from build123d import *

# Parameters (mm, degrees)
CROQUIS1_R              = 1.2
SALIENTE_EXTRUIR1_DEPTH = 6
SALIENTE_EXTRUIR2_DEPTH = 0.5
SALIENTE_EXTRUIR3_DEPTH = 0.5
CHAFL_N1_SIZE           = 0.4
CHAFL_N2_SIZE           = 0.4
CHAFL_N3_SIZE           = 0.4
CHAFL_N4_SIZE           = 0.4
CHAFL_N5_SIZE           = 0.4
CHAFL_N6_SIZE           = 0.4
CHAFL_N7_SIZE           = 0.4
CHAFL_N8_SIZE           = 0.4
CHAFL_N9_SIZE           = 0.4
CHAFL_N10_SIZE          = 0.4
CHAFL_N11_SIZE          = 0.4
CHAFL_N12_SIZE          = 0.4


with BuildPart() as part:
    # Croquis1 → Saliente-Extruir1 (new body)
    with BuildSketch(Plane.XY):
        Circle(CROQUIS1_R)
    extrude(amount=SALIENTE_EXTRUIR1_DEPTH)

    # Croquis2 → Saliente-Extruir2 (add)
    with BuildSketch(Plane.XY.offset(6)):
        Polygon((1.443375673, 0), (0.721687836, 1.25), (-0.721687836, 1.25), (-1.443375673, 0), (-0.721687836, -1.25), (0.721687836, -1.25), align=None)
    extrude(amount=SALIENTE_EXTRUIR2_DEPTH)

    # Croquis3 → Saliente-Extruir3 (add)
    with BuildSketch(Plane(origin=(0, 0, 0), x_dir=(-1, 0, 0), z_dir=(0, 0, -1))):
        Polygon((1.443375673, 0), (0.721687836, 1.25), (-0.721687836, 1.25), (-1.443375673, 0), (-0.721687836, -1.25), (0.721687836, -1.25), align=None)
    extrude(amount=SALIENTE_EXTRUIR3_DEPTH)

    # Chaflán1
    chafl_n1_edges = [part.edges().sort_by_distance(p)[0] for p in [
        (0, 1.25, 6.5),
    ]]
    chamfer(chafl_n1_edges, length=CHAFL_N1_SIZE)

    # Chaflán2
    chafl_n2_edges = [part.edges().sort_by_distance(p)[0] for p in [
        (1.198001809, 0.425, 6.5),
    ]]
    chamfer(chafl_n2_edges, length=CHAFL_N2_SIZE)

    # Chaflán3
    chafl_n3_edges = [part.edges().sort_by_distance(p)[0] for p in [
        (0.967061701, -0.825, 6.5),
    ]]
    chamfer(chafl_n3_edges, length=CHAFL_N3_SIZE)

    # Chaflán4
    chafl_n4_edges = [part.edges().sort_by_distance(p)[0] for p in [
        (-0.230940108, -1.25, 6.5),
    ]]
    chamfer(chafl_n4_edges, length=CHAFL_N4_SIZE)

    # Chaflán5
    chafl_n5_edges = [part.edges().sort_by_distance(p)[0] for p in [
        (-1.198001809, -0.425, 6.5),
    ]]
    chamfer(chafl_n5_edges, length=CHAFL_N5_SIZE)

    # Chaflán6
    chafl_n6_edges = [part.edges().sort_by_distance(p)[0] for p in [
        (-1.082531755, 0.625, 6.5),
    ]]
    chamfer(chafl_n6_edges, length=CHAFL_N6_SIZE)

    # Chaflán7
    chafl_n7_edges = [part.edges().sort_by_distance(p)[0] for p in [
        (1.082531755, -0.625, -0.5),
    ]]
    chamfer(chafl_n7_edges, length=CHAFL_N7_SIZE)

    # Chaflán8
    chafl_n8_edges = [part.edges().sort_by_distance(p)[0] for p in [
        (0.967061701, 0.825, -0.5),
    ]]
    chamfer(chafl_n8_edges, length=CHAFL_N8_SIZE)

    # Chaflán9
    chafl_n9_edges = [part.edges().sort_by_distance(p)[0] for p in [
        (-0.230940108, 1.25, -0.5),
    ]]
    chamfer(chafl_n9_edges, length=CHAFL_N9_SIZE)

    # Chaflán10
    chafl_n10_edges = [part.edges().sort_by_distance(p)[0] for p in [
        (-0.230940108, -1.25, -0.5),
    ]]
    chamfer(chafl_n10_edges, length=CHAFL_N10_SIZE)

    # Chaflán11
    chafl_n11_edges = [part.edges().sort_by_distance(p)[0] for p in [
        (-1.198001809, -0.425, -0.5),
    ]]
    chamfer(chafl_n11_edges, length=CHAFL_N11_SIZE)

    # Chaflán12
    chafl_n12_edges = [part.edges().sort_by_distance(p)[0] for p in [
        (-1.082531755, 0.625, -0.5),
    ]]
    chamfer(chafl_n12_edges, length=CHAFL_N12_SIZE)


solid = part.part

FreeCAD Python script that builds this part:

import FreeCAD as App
import Part
import Sketcher

V = App.Vector
Q = App.Units.Quantity


def edges_at(feature, points):
    """Names of the edges that pass closest to the given points."""
    edges = feature.Shape.Edges
    near = lambda p: min(range(len(edges)), key=lambda i: edges[i].distToShape(Part.Vertex(*p))[0])
    return sorted({f"Edge{near(p) + 1}" for p in points})


def add_polygon(sketch, points):
    """Adds a closed chain of lines whose ends are joined by coincident constraints."""
    first, n = sketch.GeometryCount, len(points)
    for a, b in zip(points, points[1:] + points[:1]):
        sketch.addGeometry(Part.LineSegment(App.Vector(*a, 0), App.Vector(*b, 0)), False)
    for i in range(n):
        sketch.addConstraint(Sketcher.Constraint("Coincident", first + i, 2, first + (i + 1) % n, 1))

doc = App.newDocument("Part")
body = doc.addObject("PartDesign::Body", "Body")

# Sketch on XY plane
sketch1 = doc.addObject("Sketcher::SketchObject", "Sketch")
body.addObject(sketch1)
sketch1.AttachmentSupport = (doc.XY_Plane, [""])
sketch1.MapMode = "FlatFace"
sketch1.addGeometry(Part.Circle(V(0, 0, 0), V(0, 0, 1), 1.2), False)
sketch1.addConstraint([
    Sketcher.Constraint("Coincident", 0, 3, -1, 1),
    Sketcher.Constraint("Diameter", 0, Q("2.4 mm")),
])
pad1 = doc.addObject("PartDesign::Pad", "Pad")
body.addObject(pad1)
pad1.Profile = sketch1
pad1.Length = 6

# Sketch on XY plane
sketch2 = doc.addObject("Sketcher::SketchObject", "Sketch001")
body.addObject(sketch2)
sketch2.AttachmentSupport = (doc.XY_Plane, [""])
sketch2.MapMode = "FlatFace"
sketch2.AttachmentOffset = App.Placement(V(0, 0, 6), App.Rotation())
add_polygon(sketch2, [(1.4, 0), (0.7, 1.2), (-0.7, 1.2), (-1.4, 0), (-0.7, -1.2), (0.7, -1.2)])  # lines 0-5
sketch2.addConstraint([
    Sketcher.Constraint("Horizontal", 1),
    Sketcher.Constraint("Horizontal", 4),
    Sketcher.Constraint("Symmetric", 0, 2, 3, 2, -1, 1),
    Sketcher.Constraint("Symmetric", 2, 2, 5, 2, -1, 1),
    Sketcher.Constraint("PointOnObject", 2, 2, -1),
    Sketcher.Constraint("Parallel", 2, 5),
    Sketcher.Constraint("Vertical", 1, 2, 3, 2),
    Sketcher.Constraint("Angle", 0, Q("120 deg")),
    Sketcher.Constraint("DistanceY", 3, 2, 1, 2, Q("2.5 mm")),
    Sketcher.Constraint("DistanceX", 1, 2, 1, 1, Q("1.443376 mm")),
])
pad2 = doc.addObject("PartDesign::Pad", "Pad001")
body.addObject(pad2)
pad2.Profile = sketch2
pad2.Length = 0.5

# Sketch on XY plane
sketch3 = doc.addObject("Sketcher::SketchObject", "Sketch002")
body.addObject(sketch3)
sketch3.AttachmentSupport = (doc.XY_Plane, [""])
sketch3.MapMode = "FlatFace"
add_polygon(sketch3, [(-1.4, 0), (-0.7, 1.2), (0.7, 1.2), (1.4, 0), (0.7, -1.2), (-0.7, -1.2)])  # lines 0-5
sketch3.addConstraint([
    Sketcher.Constraint("Horizontal", 1),
    Sketcher.Constraint("Horizontal", 4),
    Sketcher.Constraint("Symmetric", 0, 2, 3, 2, -1, 1),
    Sketcher.Constraint("Symmetric", 2, 2, 5, 2, -1, 1),
    Sketcher.Constraint("PointOnObject", 2, 2, -1),
    Sketcher.Constraint("Parallel", 2, 5),
    Sketcher.Constraint("Vertical", 1, 2, 3, 2),
    Sketcher.Constraint("Angle", 0, Q("60 deg")),
    Sketcher.Constraint("DistanceY", 3, 2, 1, 2, Q("2.5 mm")),
    Sketcher.Constraint("DistanceX", 1, 1, 1, 2, Q("1.443376 mm")),
])
pad3 = doc.addObject("PartDesign::Pad", "Pad002")
body.addObject(pad3)
pad3.Profile = sketch3
pad3.Length = 0.5
pad3.Reversed = True
doc.recompute()

chamfer = doc.addObject("PartDesign::Chamfer", "Chamfer")
body.addObject(chamfer)
chamfer.Base = (pad3, edges_at(pad3, [(0, 1.25, 6.5)]))
chamfer.Size = 0.4
doc.recompute()

chamfer2 = doc.addObject("PartDesign::Chamfer", "Chamfer001")
body.addObject(chamfer2)
chamfer2.Base = (chamfer, edges_at(chamfer, [(1.198, 0.425, 6.5)]))
chamfer2.Size = 0.4
doc.recompute()

chamfer3 = doc.addObject("PartDesign::Chamfer", "Chamfer002")
body.addObject(chamfer3)
chamfer3.Base = (chamfer2, edges_at(chamfer2, [(0.967, -0.825, 6.5)]))
chamfer3.Size = 0.4
doc.recompute()

chamfer4 = doc.addObject("PartDesign::Chamfer", "Chamfer003")
body.addObject(chamfer4)
chamfer4.Base = (chamfer3, edges_at(chamfer3, [(-0.231, -1.25, 6.5)]))
chamfer4.Size = 0.4
doc.recompute()

chamfer5 = doc.addObject("PartDesign::Chamfer", "Chamfer004")
body.addObject(chamfer5)
chamfer5.Base = (chamfer4, edges_at(chamfer4, [(-1.198, -0.425, 6.5)]))
chamfer5.Size = 0.4
doc.recompute()

chamfer6 = doc.addObject("PartDesign::Chamfer", "Chamfer005")
body.addObject(chamfer6)
chamfer6.Base = (chamfer5, edges_at(chamfer5, [(-1.083, 0.625, 6.5)]))
chamfer6.Size = 0.4
doc.recompute()

chamfer7 = doc.addObject("PartDesign::Chamfer", "Chamfer006")
body.addObject(chamfer7)
chamfer7.Base = (chamfer6, edges_at(chamfer6, [(1.083, -0.625, -0.5)]))
chamfer7.Size = 0.4
doc.recompute()

chamfer8 = doc.addObject("PartDesign::Chamfer", "Chamfer007")
body.addObject(chamfer8)
chamfer8.Base = (chamfer7, edges_at(chamfer7, [(0.967, 0.825, -0.5)]))
chamfer8.Size = 0.4
doc.recompute()

chamfer9 = doc.addObject("PartDesign::Chamfer", "Chamfer008")
body.addObject(chamfer9)
chamfer9.Base = (chamfer8, edges_at(chamfer8, [(-0.231, 1.25, -0.5)]))
chamfer9.Size = 0.4
doc.recompute()

chamfer10 = doc.addObject("PartDesign::Chamfer", "Chamfer009")
body.addObject(chamfer10)
chamfer10.Base = (chamfer9, edges_at(chamfer9, [(-0.231, -1.25, -0.5)]))
chamfer10.Size = 0.4
doc.recompute()

chamfer11 = doc.addObject("PartDesign::Chamfer", "Chamfer010")
body.addObject(chamfer11)
chamfer11.Base = (chamfer10, edges_at(chamfer10, [(-1.198, -0.425, -0.5)]))
chamfer11.Size = 0.4
doc.recompute()

chamfer12 = doc.addObject("PartDesign::Chamfer", "Chamfer011")
body.addObject(chamfer12)
chamfer12.Base = (chamfer11, edges_at(chamfer11, [(-1.083, 0.625, -0.5)]))
chamfer12.Size = 0.4

doc.recompute()
